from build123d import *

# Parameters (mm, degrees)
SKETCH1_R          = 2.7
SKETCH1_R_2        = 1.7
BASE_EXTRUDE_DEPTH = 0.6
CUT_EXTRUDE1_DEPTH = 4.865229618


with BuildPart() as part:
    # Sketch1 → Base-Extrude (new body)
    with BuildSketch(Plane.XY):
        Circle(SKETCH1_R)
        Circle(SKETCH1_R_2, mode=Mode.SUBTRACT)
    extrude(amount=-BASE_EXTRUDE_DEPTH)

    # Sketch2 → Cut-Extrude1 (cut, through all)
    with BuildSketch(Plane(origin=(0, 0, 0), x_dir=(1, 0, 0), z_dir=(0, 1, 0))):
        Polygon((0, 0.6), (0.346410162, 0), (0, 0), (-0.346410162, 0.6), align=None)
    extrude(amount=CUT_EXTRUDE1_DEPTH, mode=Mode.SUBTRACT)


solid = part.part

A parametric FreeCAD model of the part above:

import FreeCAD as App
import Part
import Sketcher

V = App.Vector
Q = App.Units.Quantity


def add_polygon(sketch, points):
    """Adds a closed chain of lines whose ends are joined by coincident constraints."""
    first, n = sketch.GeometryCount, len(points)
    for a, b in zip(points, points[1:] + points[:1]):
        sketch.addGeometry(Part.LineSegment(App.Vector(*a, 0), App.Vector(*b, 0)), False)
    for i in range(n):
        sketch.addConstraint(Sketcher.Constraint("Coincident", first + i, 2, first + (i + 1) % n, 1))

doc = App.newDocument("Part")
body = doc.addObject("PartDesign::Body", "Body")

sketch1 = doc.addObject("Sketcher::SketchObject", "Sketch")
body.addObject(sketch1)
sketch1.AttachmentSupport = (doc.XY_Plane, [""])
sketch1.MapMode = "FlatFace"
sketch1.addGeometry([
    Part.Circle(V(0, 0, 0), V(0, 0, 1), 2.7),
    Part.Circle(V(0, 0, 0), V(0, 0, 1), 1.7),
], False)
sketch1.addConstraint([
    Sketcher.Constraint("Coincident", 0, 3, -1, 1),
    Sketcher.Constraint("Coincident", 1, 3, -1, 1),
    Sketcher.Constraint("Diameter", 0, 5.4),
    Sketcher.Constraint("Diameter", 1, 3.4),
])
pad1 = doc.addObject("PartDesign::Pad", "Pad")
body.addObject(pad1)
pad1.Profile = sketch1
pad1.Length = 0.6
pad1.Reversed = True

sketch2 = doc.addObject("Sketcher::SketchObject", "Sketch001")
body.addObject(sketch2)
sketch2.AttachmentSupport = (doc.XZ_Plane, [""])
sketch2.MapMode = "FlatFace"
add_polygon(sketch2, [(0.35, 0), (0, -0.6), (-0.35, -0.6), (0, 0)])
sketch2.addConstraint([
    Sketcher.Constraint("Horizontal", 1),
    Sketcher.Constraint("Horizontal", 3),
    Sketcher.Constraint("Coincident", 2, 2, -1, 1),
    Sketcher.Constraint("PointOnObject", 0, 2, -2),
    Sketcher.Constraint("Parallel", 0, 2),
    Sketcher.Constraint("Angle", 0, Q("-120 deg")),
    Sketcher.Constraint("DistanceY", 0, 2, -1, 1, 0.6),
])
pocket1 = doc.addObject("PartDesign::Pocket", "Pocket")
body.addObject(pocket1)
pocket1.Profile = sketch2
pocket1.Type = "ThroughAll"

doc.recompute()
